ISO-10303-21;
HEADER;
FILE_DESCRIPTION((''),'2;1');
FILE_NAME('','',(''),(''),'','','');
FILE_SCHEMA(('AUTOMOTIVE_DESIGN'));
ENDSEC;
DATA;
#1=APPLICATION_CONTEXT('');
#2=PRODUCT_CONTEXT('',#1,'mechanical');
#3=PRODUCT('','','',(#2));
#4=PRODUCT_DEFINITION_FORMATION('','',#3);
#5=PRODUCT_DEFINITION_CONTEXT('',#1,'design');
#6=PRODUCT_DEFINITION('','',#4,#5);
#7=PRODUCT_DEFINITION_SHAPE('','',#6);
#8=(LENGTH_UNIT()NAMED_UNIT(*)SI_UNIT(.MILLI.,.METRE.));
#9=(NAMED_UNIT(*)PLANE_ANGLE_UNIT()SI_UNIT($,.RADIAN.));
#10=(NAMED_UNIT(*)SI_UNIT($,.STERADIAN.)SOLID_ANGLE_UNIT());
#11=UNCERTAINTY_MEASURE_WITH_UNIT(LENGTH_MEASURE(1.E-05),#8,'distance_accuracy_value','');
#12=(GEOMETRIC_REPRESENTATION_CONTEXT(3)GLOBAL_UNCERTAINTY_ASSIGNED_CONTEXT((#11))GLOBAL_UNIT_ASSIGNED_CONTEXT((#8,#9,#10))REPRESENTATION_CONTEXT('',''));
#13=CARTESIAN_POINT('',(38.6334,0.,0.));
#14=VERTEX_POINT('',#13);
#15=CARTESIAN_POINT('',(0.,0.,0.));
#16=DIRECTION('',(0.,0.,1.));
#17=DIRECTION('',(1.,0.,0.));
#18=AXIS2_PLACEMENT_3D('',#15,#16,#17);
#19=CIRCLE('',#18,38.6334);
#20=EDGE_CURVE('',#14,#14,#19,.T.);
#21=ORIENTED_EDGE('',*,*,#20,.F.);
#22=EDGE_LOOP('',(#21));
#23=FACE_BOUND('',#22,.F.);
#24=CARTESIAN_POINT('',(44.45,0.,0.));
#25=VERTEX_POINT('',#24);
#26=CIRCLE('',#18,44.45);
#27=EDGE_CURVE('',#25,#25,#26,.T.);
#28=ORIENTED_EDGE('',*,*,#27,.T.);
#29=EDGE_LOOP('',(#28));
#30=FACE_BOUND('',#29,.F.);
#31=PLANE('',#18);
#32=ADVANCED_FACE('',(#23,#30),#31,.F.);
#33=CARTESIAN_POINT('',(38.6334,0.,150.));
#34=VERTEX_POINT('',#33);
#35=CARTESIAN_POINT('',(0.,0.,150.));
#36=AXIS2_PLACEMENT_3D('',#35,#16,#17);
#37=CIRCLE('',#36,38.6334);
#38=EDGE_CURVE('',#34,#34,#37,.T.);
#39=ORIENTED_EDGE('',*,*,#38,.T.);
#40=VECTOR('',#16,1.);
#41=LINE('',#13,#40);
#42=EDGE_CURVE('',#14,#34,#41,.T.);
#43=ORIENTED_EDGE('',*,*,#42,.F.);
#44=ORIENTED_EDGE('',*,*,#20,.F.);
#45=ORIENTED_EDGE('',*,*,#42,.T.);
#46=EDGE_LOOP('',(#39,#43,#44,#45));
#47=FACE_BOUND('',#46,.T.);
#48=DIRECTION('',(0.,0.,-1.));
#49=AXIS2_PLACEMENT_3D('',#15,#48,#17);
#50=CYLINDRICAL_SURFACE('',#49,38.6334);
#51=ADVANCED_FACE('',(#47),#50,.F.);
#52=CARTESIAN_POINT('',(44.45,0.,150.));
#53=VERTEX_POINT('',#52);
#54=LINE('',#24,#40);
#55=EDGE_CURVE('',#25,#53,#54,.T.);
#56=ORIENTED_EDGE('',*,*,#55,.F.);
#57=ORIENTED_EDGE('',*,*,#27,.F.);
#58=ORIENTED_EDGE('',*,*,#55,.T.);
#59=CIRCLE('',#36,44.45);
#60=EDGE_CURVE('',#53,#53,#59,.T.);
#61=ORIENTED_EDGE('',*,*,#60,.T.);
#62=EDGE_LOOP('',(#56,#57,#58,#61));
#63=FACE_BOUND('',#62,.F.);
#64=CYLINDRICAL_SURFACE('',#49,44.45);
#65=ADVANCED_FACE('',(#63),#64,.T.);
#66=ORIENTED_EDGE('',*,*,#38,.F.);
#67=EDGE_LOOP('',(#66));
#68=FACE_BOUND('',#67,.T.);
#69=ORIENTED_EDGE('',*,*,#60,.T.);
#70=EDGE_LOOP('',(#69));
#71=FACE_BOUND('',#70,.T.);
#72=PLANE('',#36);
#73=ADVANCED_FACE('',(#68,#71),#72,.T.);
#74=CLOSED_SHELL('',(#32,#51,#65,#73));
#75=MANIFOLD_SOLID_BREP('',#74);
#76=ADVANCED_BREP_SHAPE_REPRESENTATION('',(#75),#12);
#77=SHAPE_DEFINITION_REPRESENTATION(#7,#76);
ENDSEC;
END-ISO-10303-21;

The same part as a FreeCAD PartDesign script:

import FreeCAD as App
import Part
import Sketcher

V = App.Vector
Q = App.Units.Quantity

doc = App.newDocument("Part")
body = doc.addObject("PartDesign::Body", "Body")

# Sketch on XY plane
sketch1 = body.newObject("Sketcher::SketchObject", "Sketch")
sketch1.AttachmentSupport = (doc.getObject("XY_Plane"), [""])
sketch1.MapMode = "FlatFace"
sketch1.addGeometry(Part.Circle(V(0, 0, 0), V(0, 0, 1), 44), False)
sketch1.addGeometry(Part.Circle(V(0, 0, 0), V(0, 0, 1), 39), False)
sketch1.addConstraint(Sketcher.Constraint("Coincident", 0, 3, -1, 1))
sketch1.addConstraint(Sketcher.Constraint("Coincident", 1, 3, -1, 1))
sketch1.addConstraint(Sketcher.Constraint("Diameter", 0, Q("3.5 in")))
sketch1.addConstraint(Sketcher.Constraint("Diameter", 1, Q("3.042 in")))
pad1 = body.newObject("PartDesign::Pad", "Pad")
pad1.Profile = sketch1
pad1.Length = Q("5.9055118 in")

doc.recompute()
